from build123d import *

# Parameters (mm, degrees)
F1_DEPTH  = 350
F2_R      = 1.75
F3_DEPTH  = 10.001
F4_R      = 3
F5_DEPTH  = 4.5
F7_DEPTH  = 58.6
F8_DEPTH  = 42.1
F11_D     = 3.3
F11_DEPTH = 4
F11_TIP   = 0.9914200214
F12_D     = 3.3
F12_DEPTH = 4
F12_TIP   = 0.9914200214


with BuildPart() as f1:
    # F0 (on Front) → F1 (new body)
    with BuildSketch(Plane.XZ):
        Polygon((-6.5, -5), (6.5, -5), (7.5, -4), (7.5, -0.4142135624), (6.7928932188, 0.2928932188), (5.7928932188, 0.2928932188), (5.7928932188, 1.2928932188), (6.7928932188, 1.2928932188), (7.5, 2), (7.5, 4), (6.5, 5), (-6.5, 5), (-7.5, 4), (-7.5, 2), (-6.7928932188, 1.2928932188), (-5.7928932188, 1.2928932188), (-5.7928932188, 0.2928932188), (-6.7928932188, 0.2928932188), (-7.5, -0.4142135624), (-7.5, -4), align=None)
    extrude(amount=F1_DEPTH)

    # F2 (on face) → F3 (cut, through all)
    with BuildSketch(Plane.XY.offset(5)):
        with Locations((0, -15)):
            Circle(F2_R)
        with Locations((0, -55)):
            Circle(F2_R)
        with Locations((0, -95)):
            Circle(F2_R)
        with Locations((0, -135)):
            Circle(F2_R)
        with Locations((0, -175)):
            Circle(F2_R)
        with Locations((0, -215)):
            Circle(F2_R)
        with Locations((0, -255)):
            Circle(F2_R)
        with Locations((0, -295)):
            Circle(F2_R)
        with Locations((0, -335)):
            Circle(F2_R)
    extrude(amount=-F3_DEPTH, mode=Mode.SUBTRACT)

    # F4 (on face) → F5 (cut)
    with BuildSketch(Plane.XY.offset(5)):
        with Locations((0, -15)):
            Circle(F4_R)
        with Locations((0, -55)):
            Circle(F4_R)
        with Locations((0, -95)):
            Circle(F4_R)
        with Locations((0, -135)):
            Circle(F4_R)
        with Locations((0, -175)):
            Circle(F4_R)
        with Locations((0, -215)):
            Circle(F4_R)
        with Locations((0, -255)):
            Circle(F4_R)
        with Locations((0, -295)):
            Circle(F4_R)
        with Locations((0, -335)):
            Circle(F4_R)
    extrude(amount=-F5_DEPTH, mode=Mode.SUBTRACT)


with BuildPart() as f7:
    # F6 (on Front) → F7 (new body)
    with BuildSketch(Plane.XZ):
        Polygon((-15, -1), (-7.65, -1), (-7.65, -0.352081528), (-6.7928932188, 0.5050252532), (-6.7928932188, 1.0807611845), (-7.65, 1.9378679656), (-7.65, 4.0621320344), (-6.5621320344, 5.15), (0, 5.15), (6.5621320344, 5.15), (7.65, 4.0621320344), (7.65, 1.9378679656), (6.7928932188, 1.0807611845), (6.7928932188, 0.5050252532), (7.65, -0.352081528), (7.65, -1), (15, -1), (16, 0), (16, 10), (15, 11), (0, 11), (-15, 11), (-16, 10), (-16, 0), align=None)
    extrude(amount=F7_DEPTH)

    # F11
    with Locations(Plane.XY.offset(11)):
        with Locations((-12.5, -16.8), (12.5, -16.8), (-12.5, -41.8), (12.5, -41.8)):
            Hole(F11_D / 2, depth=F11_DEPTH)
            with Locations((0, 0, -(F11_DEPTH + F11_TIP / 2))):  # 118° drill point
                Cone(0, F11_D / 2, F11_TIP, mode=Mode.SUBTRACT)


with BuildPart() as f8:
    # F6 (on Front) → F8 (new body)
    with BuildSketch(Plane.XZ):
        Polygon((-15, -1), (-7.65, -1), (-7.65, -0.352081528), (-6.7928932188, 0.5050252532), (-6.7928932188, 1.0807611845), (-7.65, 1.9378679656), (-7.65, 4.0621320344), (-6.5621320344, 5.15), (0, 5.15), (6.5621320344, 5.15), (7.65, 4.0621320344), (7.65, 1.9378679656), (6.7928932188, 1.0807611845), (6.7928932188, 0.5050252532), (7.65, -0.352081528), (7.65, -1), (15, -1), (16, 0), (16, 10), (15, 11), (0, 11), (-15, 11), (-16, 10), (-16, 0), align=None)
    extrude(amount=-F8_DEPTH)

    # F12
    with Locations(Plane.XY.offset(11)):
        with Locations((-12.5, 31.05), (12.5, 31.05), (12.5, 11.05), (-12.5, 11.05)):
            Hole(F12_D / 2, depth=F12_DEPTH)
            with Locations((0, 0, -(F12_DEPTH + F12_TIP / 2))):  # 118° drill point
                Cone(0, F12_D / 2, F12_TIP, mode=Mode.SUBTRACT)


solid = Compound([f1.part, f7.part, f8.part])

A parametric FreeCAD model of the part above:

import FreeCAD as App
import Part
import Sketcher

V = App.Vector
Q = App.Units.Quantity


def add_polygon(sketch, points):
    """Adds a closed chain of lines whose ends are joined by coincident constraints."""
    first, n = sketch.GeometryCount, len(points)
    for a, b in zip(points, points[1:] + points[:1]):
        sketch.addGeometry(Part.LineSegment(App.Vector(*a, 0), App.Vector(*b, 0)), False)
    for i in range(n):
        sketch.addConstraint(Sketcher.Constraint("Coincident", first + i, 2, first + (i + 1) % n, 1))

doc = App.newDocument("Part")
body = doc.addObject("PartDesign::Body", "Body")

# Sketch on XZ plane
sketch1 = doc.addObject("Sketcher::SketchObject", "Sketch")
body.addObject(sketch1)
sketch1.AttachmentSupport = (doc.XZ_Plane, [""])
sketch1.MapMode = "FlatFace"
add_polygon(sketch1, [(-6.5, -5), (6.5, -5), (7.5, -4), (7.5, -0.4), (6.8, 0.3), (5.8, 0.3), (5.8, 1.3), (6.8, 1.3), (7.5, 2), (7.5, 4), (6.5, 5), (-6.5, 5), (-7.5, 4), (-7.5, 2), (-6.8, 1.3), (-5.8, 1.3), (-5.8, 0.3), (-6.8, 0.3), (-7.5, -0.4), (-7.5, -4)])  # lines 0-19
sketch1.addConstraint([
    Sketcher.Constraint("Horizontal", 0),
    Sketcher.Constraint("Vertical", 2),
    Sketcher.Constraint("Horizontal", 4),
    Sketcher.Constraint("Vertical", 5),
    Sketcher.Constraint("Horizontal", 6),
    Sketcher.Constraint("Vertical", 8),
    Sketcher.Constraint("Horizontal", 10),
    Sketcher.Constraint("Vertical", 12),
    Sketcher.Constraint("Horizontal", 14),
    Sketcher.Constraint("Vertical", 15),
    Sketcher.Constraint("Horizontal", 16),
    Sketcher.Constraint("Vertical", 18),
    Sketcher.Constraint("Symmetric", 0, 2, 10, 2, -1, 1),
    Sketcher.Constraint("Symmetric", 1, 2, 11, 2, -1, 1),
    Sketcher.Constraint("Symmetric", 8, 2, 18, 2, -1, 1),
    Sketcher.Constraint("Symmetric", 8, 2, 11, 2, -2),
    Sketcher.Constraint("Symmetric", 6, 2, 13, 2, -2),
    Sketcher.Constraint("Symmetric", 4, 2, 15, 2, -2),
    Sketcher.Constraint("Perpendicular", 1, 3),
    Sketcher.Constraint("Perpendicular", 3, 7),
    Sketcher.Constraint("Perpendicular", 7, 9),
    Sketcher.Constraint("Perpendicular", 11, 13),
    Sketcher.Constraint("Perpendicular", 13, 17),
    Sketcher.Constraint("Perpendicular", 17, 19),
    Sketcher.Constraint("Horizontal", 7, 2, 12, 2),
    Sketcher.Constraint("Horizontal", 2, 2, 17, 2),
    Sketcher.Constraint("Vertical", 3, 2, 6, 2),
    Sketcher.Constraint("Equal", 16, 5),
    Sketcher.Constraint("DistanceX", 0, 1, 0, 2, Q("13 mm")),
    Sketcher.Constraint("DistanceX", 4, 2, 4, 1, Q("1 mm")),
    Sketcher.Constraint("DistanceY", 8, 1, 8, 2, Q("2 mm")),
    Sketcher.Constraint("Distance", 3, Q("1 mm")),
    Sketcher.Constraint("DistanceY", 0, 2, -1, 1, Q("5 mm")),
    Sketcher.Constraint("DistanceY", 1, 2, -1, 1, Q("4 mm")),
])
pad1 = doc.addObject("PartDesign::Pad", "Pad")
body.addObject(pad1)
pad1.Profile = sketch1
pad1.Length = 350

# Sketch on XY plane
sketch2 = doc.addObject("Sketcher::SketchObject", "Sketch001")
body.addObject(sketch2)
sketch2.AttachmentSupport = (doc.XY_Plane, [""])
sketch2.MapMode = "FlatFace"
sketch2.AttachmentOffset = App.Placement(V(0, 0, 5), App.Rotation())
sketch2.addGeometry([
    Part.Circle(V(0, -15, 0), V(0, 0, 1), 1.8),  # 0
    Part.Circle(V(0, -55, 0), V(0, 0, 1), 1.8),  # 1
    Part.Circle(V(0, -95, 0), V(0, 0, 1), 1.8),  # 2
    Part.Circle(V(0, -135, 0), V(0, 0, 1), 1.8),  # 3
    Part.Circle(V(0, -175, 0), V(0, 0, 1), 1.8),  # 4
    Part.Circle(V(0, -215, 0), V(0, 0, 1), 1.8),  # 5
    Part.Circle(V(0, -255, 0), V(0, 0, 1), 1.8),  # 6
    Part.Circle(V(0, -295, 0), V(0, 0, 1), 1.8),  # 7
    Part.Circle(V(0, -335, 0), V(0, 0, 1), 1.8),  # 8
], False)
sketch2.addConstraint([
    Sketcher.Constraint("Equal", 0, 1),
    Sketcher.Constraint("Equal", 1, 2),
    Sketcher.Constraint("Equal", 2, 3),
    Sketcher.Constraint("Equal", 3, 4),
    Sketcher.Constraint("Equal", 4, 5),
    Sketcher.Constraint("Equal", 5, 6),
    Sketcher.Constraint("Equal", 6, 7),
    Sketcher.Constraint("Equal", 7, 8),
    Sketcher.Constraint("PointOnObject", 0, 3, -2),
    Sketcher.Constraint("PointOnObject", 1, 3, -2),
    Sketcher.Constraint("PointOnObject", 2, 3, -2),
    Sketcher.Constraint("PointOnObject", 3, 3, -2),
    Sketcher.Constraint("PointOnObject", 4, 3, -2),
    Sketcher.Constraint("PointOnObject", 5, 3, -2),
    Sketcher.Constraint("PointOnObject", 6, 3, -2),
    Sketcher.Constraint("PointOnObject", 7, 3, -2),
    Sketcher.Constraint("PointOnObject", 8, 3, -2),
    Sketcher.Constraint("Diameter", 0, Q("3.5 mm")),
    Sketcher.Constraint("DistanceY", 0, 3, -1, 1, Q("15 mm")),
    Sketcher.Constraint("DistanceY", 1, 3, -1, 1, Q("55 mm")),
    Sketcher.Constraint("DistanceY", 2, 3, -1, 1, Q("95 mm")),
    Sketcher.Constraint("DistanceY", 3, 3, -1, 1, Q("135 mm")),
    Sketcher.Constraint("DistanceY", 4, 3, -1, 1, Q("175 mm")),
    Sketcher.Constraint("DistanceY", 5, 3, -1, 1, Q("215 mm")),
    Sketcher.Constraint("DistanceY", 6, 3, -1, 1, Q("255 mm")),
    Sketcher.Constraint("DistanceY", 7, 3, -1, 1, Q("295 mm")),
    Sketcher.Constraint("DistanceY", 8, 3, -1, 1, Q("335 mm")),
])
pocket1 = doc.addObject("PartDesign::Pocket", "Pocket")
body.addObject(pocket1)
pocket1.Profile = sketch2
pocket1.Type = "ThroughAll"

# Sketch on XY plane
sketch3 = doc.addObject("Sketcher::SketchObject", "Sketch002")
body.addObject(sketch3)
sketch3.AttachmentSupport = (doc.XY_Plane, [""])
sketch3.MapMode = "FlatFace"
sketch3.AttachmentOffset = App.Placement(V(0, 0, 5), App.Rotation())
sketch3.addGeometry([
    Part.Circle(V(0, -15, 0), V(0, 0, 1), 3),  # 0
    Part.Circle(V(0, -55, 0), V(0, 0, 1), 3),  # 1
    Part.Circle(V(0, -95, 0), V(0, 0, 1), 3),  # 2
    Part.Circle(V(0, -135, 0), V(0, 0, 1), 3),  # 3
    Part.Circle(V(0, -175, 0), V(0, 0, 1), 3),  # 4
    Part.Circle(V(0, -215, 0), V(0, 0, 1), 3),  # 5
    Part.Circle(V(0, -255, 0), V(0, 0, 1), 3),  # 6
    Part.Circle(V(0, -295, 0), V(0, 0, 1), 3),  # 7
    Part.Circle(V(0, -335, 0), V(0, 0, 1), 3),  # 8
], False)
sketch3.addConstraint([
    Sketcher.Constraint("Equal", 0, 1),
    Sketcher.Constraint("Equal", 1, 2),
    Sketcher.Constraint("Equal", 2, 3),
    Sketcher.Constraint("Equal", 3, 4),
    Sketcher.Constraint("Equal", 4, 5),
    Sketcher.Constraint("Equal", 5, 6),
    Sketcher.Constraint("Equal", 6, 7),
    Sketcher.Constraint("Equal", 7, 8),
    Sketcher.Constraint("PointOnObject", 0, 3, -2),
    Sketcher.Constraint("PointOnObject", 1, 3, -2),
    Sketcher.Constraint("PointOnObject", 2, 3, -2),
    Sketcher.Constraint("PointOnObject", 3, 3, -2),
    Sketcher.Constraint("PointOnObject", 4, 3, -2),
    Sketcher.Constraint("PointOnObject", 5, 3, -2),
    Sketcher.Constraint("PointOnObject", 6, 3, -2),
    Sketcher.Constraint("PointOnObject", 7, 3, -2),
    Sketcher.Constraint("PointOnObject", 8, 3, -2),
    Sketcher.Constraint("Diameter", 0, Q("6 mm")),
    Sketcher.Constraint("DistanceY", 0, 3, -1, 1, Q("15 mm")),
    Sketcher.Constraint("DistanceY", 1, 3, -1, 1, Q("55 mm")),
    Sketcher.Constraint("DistanceY", 2, 3, -1, 1, Q("95 mm")),
    Sketcher.Constraint("DistanceY", 3, 3, -1, 1, Q("135 mm")),
    Sketcher.Constraint("DistanceY", 4, 3, -1, 1, Q("175 mm")),
    Sketcher.Constraint("DistanceY", 5, 3, -1, 1, Q("215 mm")),
    Sketcher.Constraint("DistanceY", 6, 3, -1, 1, Q("255 mm")),
    Sketcher.Constraint("DistanceY", 7, 3, -1, 1, Q("295 mm")),
    Sketcher.Constraint("DistanceY", 8, 3, -1, 1, Q("335 mm")),
])
pocket2 = doc.addObject("PartDesign::Pocket", "Pocket001")
body.addObject(pocket2)
pocket2.Profile = sketch3
pocket2.Length = 4.5
body2 = doc.addObject("PartDesign::Body", "Body001")

# Sketch on XZ plane
sketch4 = doc.addObject("Sketcher::SketchObject", "Sketch003")
body2.addObject(sketch4)
sketch4.AttachmentSupport = (doc.getObject("XZ_Plane001"), [""])
sketch4.MapMode = "FlatFace"
add_polygon(sketch4, [(-15, -1), (-7.7, -1), (-7.7, -0.4), (-6.8, 0.5), (-6.8, 1.1), (-7.7, 1.9), (-7.7, 4.1), (-6.6, 5.2), (6.6, 5.2), (7.7, 4.1), (7.7, 1.9), (6.8, 1.1), (6.8, 0.5), (7.7, -0.4), (7.7, -1), (15, -1), (16, 0), (16, 10), (15, 11), (-15, 11), (-16, 10), (-16, 0)])  # lines 0-21
sketch4.addConstraint([
    Sketcher.Constraint("Horizontal", 0),
    Sketcher.Constraint("Vertical", 1),
    Sketcher.Constraint("Vertical", 3),
    Sketcher.Constraint("Vertical", 5),
    Sketcher.Constraint("Horizontal", 7),
    Sketcher.Constraint("Vertical", 9),
    Sketcher.Constraint("Vertical", 11),
    Sketcher.Constraint("Vertical", 13),
    Sketcher.Constraint("Horizontal", 14),
    Sketcher.Constraint("Vertical", 16),
    Sketcher.Constraint("Horizontal", 18),
    Sketcher.Constraint("Vertical", 20),
    Sketcher.Constraint("Symmetric", 15, 2, 20, 2, -1, 1),
    Sketcher.Constraint("Symmetric", 5, 2, 8, 2, -2),
    Sketcher.Constraint("Symmetric", 3, 2, 10, 2, -2),
    Sketcher.Constraint("Symmetric", 1, 2, 12, 2, -2),
    Sketcher.Constraint("Symmetric", 14, 2, 21, 2, -2),
    Sketcher.Constraint("PointOnObject", 15, 2, -1),
    Sketcher.Constraint("Perpendicular", 2, 4),
    Sketcher.Constraint("Perpendicular", 4, 6),
    Sketcher.Constraint("Perpendicular", 6, 8),
    Sketcher.Constraint("Perpendicular", 8, 10),
    Sketcher.Constraint("Perpendicular", 10, 12),
    Sketcher.Constraint("Perpendicular", 12, 15),
    Sketcher.Constraint("Perpendicular", 15, 17),
    Sketcher.Constraint("Perpendicular", 17, 19),
    Sketcher.Constraint("Perpendicular", 19, 21),
    Sketcher.Constraint("Horizontal", 16, 2, 19, 2),
    Sketcher.Constraint("Vertical", 1, 2, 4, 2),
    Sketcher.Constraint("Vertical", 14, 2, 17, 2),
    Sketcher.Constraint("DistanceX", 18, 2, 18, 1, Q("30 mm")),
    Sketcher.Constraint("DistanceY", 16, 1, 16, 2, Q("10 mm")),
    Sketcher.Constraint("DistanceY", 0, 2, -1, 1, Q("1 mm")),
    Sketcher.Constraint("DistanceX", 0, 1, 0, 2, Q("7.35 mm")),
    Sketcher.Constraint("DistanceY", -1, 1, 6, 2, Q("5.15 mm")),
    Sketcher.Constraint("DistanceY", 1, 1, 1, 2, Q("0.647918 mm")),
    Sketcher.Constraint("DistanceX", 7, 1, 7, 2, Q("13.124264 mm")),
    Sketcher.Constraint("DistanceY", 3, 1, 3, 2, Q("0.575736 mm")),
    Sketcher.Constraint("DistanceY", 5, 1, 5, 2, Q("2.124264 mm")),
])
pad2 = doc.addObject("PartDesign::Pad", "Pad001")
body2.addObject(pad2)
pad2.Profile = sketch4
pad2.Length = 58.6

# Sketch on XY plane
sketch5 = doc.addObject("Sketcher::SketchObject", "Sketch004")
body2.addObject(sketch5)
sketch5.AttachmentSupport = (doc.getObject("XY_Plane001"), [""])
sketch5.MapMode = "FlatFace"
sketch5.AttachmentOffset = App.Placement(V(0, 0, 11), App.Rotation())
sketch5.addGeometry([
    Part.Circle(V(-12.5, -16.8, 0), V(0, 0, 1), 1.6),
    Part.Circle(V(12.5, -16.8, 0), V(0, 0, 1), 1.6),
    Part.Circle(V(-12.5, -41.8, 0), V(0, 0, 1), 1.6),
    Part.Circle(V(12.5, -41.8, 0), V(0, 0, 1), 1.6),
], False)
sketch5.addConstraint([
    Sketcher.Constraint("Equal", 0, 1),
    Sketcher.Constraint("Equal", 1, 2),
    Sketcher.Constraint("Equal", 2, 3),
    Sketcher.Constraint("Symmetric", 0, 3, 1, 3, -2),
    Sketcher.Constraint("Symmetric", 2, 3, 3, 3, -2),
    Sketcher.Constraint("Vertical", 0, 3, 2, 3),
    Sketcher.Constraint("Diameter", 0, Q("3.3 mm")),
    Sketcher.Constraint("DistanceX", 0, 3, 1, 3, Q("25 mm")),
    Sketcher.Constraint("DistanceY", 2, 3, 0, 3, Q("25 mm")),
    Sketcher.Constraint("DistanceY", 0, 3, -1, 1, Q("16.8 mm")),
])
doc.recompute()
hole = doc.addObject("PartDesign::Hole", "Hole")
body2.addObject(hole)
hole.Profile = sketch5
hole.ThreadType = "None"
hole.Diameter = 3.3
hole.DepthType = "Dimension"
hole.Depth = 4
hole.DrillPoint = "Angled"
hole.DrillPointAngle = 118
body3 = doc.addObject("PartDesign::Body", "Body002")

# Sketch on XZ plane
sketch6 = doc.addObject("Sketcher::SketchObject", "Sketch005")
body3.addObject(sketch6)
sketch6.AttachmentSupport = (doc.getObject("XZ_Plane002"), [""])
sketch6.MapMode = "FlatFace"
add_polygon(sketch6, [(-15, -1), (-7.7, -1), (-7.7, -0.4), (-6.8, 0.5), (-6.8, 1.1), (-7.7, 1.9), (-7.7, 4.1), (-6.6, 5.2), (6.6, 5.2), (7.7, 4.1), (7.7, 1.9), (6.8, 1.1), (6.8, 0.5), (7.7, -0.4), (7.7, -1), (15, -1), (16, 0), (16, 10), (15, 11), (-15, 11), (-16, 10), (-16, 0)])  # lines 0-21
sketch6.addConstraint([
    Sketcher.Constraint("Horizontal", 0),
    Sketcher.Constraint("Vertical", 1),
    Sketcher.Constraint("Vertical", 3),
    Sketcher.Constraint("Vertical", 5),
    Sketcher.Constraint("Horizontal", 7),
    Sketcher.Constraint("Vertical", 9),
    Sketcher.Constraint("Vertical", 11),
    Sketcher.Constraint("Vertical", 13),
    Sketcher.Constraint("Horizontal", 14),
    Sketcher.Constraint("Vertical", 16),
    Sketcher.Constraint("Horizontal", 18),
    Sketcher.Constraint("Vertical", 20),
    Sketcher.Constraint("Symmetric", 15, 2, 20, 2, -1, 1),
    Sketcher.Constraint("Symmetric", 5, 2, 8, 2, -2),
    Sketcher.Constraint("Symmetric", 3, 2, 10, 2, -2),
    Sketcher.Constraint("Symmetric", 1, 2, 12, 2, -2),
    Sketcher.Constraint("Symmetric", 14, 2, 21, 2, -2),
    Sketcher.Constraint("PointOnObject", 15, 2, -1),
    Sketcher.Constraint("Perpendicular", 2, 4),
    Sketcher.Constraint("Perpendicular", 4, 6),
    Sketcher.Constraint("Perpendicular", 6, 8),
    Sketcher.Constraint("Perpendicular", 8, 10),
    Sketcher.Constraint("Perpendicular", 10, 12),
    Sketcher.Constraint("Perpendicular", 12, 15),
    Sketcher.Constraint("Perpendicular", 15, 17),
    Sketcher.Constraint("Perpendicular", 17, 19),
    Sketcher.Constraint("Perpendicular", 19, 21),
    Sketcher.Constraint("Horizontal", 16, 2, 19, 2),
    Sketcher.Constraint("Vertical", 1, 2, 4, 2),
    Sketcher.Constraint("Vertical", 14, 2, 17, 2),
    Sketcher.Constraint("DistanceX", 18, 2, 18, 1, Q("30 mm")),
    Sketcher.Constraint("DistanceY", 16, 1, 16, 2, Q("10 mm")),
    Sketcher.Constraint("DistanceY", 0, 2, -1, 1, Q("1 mm")),
    Sketcher.Constraint("DistanceX", 0, 1, 0, 2, Q("7.35 mm")),
    Sketcher.Constraint("DistanceY", -1, 1, 6, 2, Q("5.15 mm")),
    Sketcher.Constraint("DistanceY", 1, 1, 1, 2, Q("0.647918 mm")),
    Sketcher.Constraint("DistanceX", 7, 1, 7, 2, Q("13.124264 mm")),
    Sketcher.Constraint("DistanceY", 3, 1, 3, 2, Q("0.575736 mm")),
    Sketcher.Constraint("DistanceY", 5, 1, 5, 2, Q("2.124264 mm")),
])
pad3 = doc.addObject("PartDesign::Pad", "Pad002")
body3.addObject(pad3)
pad3.Profile = sketch6
pad3.Length = 42.1
pad3.Reversed = True

# Sketch on XY plane
sketch7 = doc.addObject("Sketcher::SketchObject", "Sketch006")
body3.addObject(sketch7)
sketch7.AttachmentSupport = (doc.getObject("XY_Plane002"), [""])
sketch7.MapMode = "FlatFace"
sketch7.AttachmentOffset = App.Placement(V(0, 0, 11), App.Rotation())
sketch7.addGeometry([
    Part.Circle(V(-12.5, 31.1, 0), V(0, 0, 1), 1.6),
    Part.Circle(V(12.5, 31.1, 0), V(0, 0, 1), 1.6),
    Part.Circle(V(12.5, 11.1, 0), V(0, 0, 1), 1.6),
    Part.Circle(V(-12.5, 11.1, 0), V(0, 0, 1), 1.6),
], False)
sketch7.addConstraint([
    Sketcher.Constraint("Equal", 0, 1),
    Sketcher.Constraint("Equal", 1, 2),
    Sketcher.Constraint("Equal", 2, 3),
    Sketcher.Constraint("Symmetric", 0, 3, 1, 3, -2),
    Sketcher.Constraint("Symmetric", 2, 3, 3, 3, -2),
    Sketcher.Constraint("Vertical", 1, 3, 2, 3),
    Sketcher.Constraint("Diameter", 0, Q("3.3 mm")),
    Sketcher.Constraint("DistanceX", 0, 3, 1, 3, Q("25 mm")),
    Sketcher.Constraint("DistanceY", 2, 3, 1, 3, Q("20 mm")),
    Sketcher.Constraint("DistanceY", -1, 1, 0, 3, Q("31.05 mm")),
])
doc.recompute()
hole2 = doc.addObject("PartDesign::Hole", "Hole001")
body3.addObject(hole2)
hole2.Profile = sketch7
hole2.ThreadType = "None"
hole2.Diameter = 3.3
hole2.DepthType = "Dimension"
hole2.Depth = 4
hole2.DrillPoint = "Angled"
hole2.DrillPointAngle = 118

doc.recompute()
